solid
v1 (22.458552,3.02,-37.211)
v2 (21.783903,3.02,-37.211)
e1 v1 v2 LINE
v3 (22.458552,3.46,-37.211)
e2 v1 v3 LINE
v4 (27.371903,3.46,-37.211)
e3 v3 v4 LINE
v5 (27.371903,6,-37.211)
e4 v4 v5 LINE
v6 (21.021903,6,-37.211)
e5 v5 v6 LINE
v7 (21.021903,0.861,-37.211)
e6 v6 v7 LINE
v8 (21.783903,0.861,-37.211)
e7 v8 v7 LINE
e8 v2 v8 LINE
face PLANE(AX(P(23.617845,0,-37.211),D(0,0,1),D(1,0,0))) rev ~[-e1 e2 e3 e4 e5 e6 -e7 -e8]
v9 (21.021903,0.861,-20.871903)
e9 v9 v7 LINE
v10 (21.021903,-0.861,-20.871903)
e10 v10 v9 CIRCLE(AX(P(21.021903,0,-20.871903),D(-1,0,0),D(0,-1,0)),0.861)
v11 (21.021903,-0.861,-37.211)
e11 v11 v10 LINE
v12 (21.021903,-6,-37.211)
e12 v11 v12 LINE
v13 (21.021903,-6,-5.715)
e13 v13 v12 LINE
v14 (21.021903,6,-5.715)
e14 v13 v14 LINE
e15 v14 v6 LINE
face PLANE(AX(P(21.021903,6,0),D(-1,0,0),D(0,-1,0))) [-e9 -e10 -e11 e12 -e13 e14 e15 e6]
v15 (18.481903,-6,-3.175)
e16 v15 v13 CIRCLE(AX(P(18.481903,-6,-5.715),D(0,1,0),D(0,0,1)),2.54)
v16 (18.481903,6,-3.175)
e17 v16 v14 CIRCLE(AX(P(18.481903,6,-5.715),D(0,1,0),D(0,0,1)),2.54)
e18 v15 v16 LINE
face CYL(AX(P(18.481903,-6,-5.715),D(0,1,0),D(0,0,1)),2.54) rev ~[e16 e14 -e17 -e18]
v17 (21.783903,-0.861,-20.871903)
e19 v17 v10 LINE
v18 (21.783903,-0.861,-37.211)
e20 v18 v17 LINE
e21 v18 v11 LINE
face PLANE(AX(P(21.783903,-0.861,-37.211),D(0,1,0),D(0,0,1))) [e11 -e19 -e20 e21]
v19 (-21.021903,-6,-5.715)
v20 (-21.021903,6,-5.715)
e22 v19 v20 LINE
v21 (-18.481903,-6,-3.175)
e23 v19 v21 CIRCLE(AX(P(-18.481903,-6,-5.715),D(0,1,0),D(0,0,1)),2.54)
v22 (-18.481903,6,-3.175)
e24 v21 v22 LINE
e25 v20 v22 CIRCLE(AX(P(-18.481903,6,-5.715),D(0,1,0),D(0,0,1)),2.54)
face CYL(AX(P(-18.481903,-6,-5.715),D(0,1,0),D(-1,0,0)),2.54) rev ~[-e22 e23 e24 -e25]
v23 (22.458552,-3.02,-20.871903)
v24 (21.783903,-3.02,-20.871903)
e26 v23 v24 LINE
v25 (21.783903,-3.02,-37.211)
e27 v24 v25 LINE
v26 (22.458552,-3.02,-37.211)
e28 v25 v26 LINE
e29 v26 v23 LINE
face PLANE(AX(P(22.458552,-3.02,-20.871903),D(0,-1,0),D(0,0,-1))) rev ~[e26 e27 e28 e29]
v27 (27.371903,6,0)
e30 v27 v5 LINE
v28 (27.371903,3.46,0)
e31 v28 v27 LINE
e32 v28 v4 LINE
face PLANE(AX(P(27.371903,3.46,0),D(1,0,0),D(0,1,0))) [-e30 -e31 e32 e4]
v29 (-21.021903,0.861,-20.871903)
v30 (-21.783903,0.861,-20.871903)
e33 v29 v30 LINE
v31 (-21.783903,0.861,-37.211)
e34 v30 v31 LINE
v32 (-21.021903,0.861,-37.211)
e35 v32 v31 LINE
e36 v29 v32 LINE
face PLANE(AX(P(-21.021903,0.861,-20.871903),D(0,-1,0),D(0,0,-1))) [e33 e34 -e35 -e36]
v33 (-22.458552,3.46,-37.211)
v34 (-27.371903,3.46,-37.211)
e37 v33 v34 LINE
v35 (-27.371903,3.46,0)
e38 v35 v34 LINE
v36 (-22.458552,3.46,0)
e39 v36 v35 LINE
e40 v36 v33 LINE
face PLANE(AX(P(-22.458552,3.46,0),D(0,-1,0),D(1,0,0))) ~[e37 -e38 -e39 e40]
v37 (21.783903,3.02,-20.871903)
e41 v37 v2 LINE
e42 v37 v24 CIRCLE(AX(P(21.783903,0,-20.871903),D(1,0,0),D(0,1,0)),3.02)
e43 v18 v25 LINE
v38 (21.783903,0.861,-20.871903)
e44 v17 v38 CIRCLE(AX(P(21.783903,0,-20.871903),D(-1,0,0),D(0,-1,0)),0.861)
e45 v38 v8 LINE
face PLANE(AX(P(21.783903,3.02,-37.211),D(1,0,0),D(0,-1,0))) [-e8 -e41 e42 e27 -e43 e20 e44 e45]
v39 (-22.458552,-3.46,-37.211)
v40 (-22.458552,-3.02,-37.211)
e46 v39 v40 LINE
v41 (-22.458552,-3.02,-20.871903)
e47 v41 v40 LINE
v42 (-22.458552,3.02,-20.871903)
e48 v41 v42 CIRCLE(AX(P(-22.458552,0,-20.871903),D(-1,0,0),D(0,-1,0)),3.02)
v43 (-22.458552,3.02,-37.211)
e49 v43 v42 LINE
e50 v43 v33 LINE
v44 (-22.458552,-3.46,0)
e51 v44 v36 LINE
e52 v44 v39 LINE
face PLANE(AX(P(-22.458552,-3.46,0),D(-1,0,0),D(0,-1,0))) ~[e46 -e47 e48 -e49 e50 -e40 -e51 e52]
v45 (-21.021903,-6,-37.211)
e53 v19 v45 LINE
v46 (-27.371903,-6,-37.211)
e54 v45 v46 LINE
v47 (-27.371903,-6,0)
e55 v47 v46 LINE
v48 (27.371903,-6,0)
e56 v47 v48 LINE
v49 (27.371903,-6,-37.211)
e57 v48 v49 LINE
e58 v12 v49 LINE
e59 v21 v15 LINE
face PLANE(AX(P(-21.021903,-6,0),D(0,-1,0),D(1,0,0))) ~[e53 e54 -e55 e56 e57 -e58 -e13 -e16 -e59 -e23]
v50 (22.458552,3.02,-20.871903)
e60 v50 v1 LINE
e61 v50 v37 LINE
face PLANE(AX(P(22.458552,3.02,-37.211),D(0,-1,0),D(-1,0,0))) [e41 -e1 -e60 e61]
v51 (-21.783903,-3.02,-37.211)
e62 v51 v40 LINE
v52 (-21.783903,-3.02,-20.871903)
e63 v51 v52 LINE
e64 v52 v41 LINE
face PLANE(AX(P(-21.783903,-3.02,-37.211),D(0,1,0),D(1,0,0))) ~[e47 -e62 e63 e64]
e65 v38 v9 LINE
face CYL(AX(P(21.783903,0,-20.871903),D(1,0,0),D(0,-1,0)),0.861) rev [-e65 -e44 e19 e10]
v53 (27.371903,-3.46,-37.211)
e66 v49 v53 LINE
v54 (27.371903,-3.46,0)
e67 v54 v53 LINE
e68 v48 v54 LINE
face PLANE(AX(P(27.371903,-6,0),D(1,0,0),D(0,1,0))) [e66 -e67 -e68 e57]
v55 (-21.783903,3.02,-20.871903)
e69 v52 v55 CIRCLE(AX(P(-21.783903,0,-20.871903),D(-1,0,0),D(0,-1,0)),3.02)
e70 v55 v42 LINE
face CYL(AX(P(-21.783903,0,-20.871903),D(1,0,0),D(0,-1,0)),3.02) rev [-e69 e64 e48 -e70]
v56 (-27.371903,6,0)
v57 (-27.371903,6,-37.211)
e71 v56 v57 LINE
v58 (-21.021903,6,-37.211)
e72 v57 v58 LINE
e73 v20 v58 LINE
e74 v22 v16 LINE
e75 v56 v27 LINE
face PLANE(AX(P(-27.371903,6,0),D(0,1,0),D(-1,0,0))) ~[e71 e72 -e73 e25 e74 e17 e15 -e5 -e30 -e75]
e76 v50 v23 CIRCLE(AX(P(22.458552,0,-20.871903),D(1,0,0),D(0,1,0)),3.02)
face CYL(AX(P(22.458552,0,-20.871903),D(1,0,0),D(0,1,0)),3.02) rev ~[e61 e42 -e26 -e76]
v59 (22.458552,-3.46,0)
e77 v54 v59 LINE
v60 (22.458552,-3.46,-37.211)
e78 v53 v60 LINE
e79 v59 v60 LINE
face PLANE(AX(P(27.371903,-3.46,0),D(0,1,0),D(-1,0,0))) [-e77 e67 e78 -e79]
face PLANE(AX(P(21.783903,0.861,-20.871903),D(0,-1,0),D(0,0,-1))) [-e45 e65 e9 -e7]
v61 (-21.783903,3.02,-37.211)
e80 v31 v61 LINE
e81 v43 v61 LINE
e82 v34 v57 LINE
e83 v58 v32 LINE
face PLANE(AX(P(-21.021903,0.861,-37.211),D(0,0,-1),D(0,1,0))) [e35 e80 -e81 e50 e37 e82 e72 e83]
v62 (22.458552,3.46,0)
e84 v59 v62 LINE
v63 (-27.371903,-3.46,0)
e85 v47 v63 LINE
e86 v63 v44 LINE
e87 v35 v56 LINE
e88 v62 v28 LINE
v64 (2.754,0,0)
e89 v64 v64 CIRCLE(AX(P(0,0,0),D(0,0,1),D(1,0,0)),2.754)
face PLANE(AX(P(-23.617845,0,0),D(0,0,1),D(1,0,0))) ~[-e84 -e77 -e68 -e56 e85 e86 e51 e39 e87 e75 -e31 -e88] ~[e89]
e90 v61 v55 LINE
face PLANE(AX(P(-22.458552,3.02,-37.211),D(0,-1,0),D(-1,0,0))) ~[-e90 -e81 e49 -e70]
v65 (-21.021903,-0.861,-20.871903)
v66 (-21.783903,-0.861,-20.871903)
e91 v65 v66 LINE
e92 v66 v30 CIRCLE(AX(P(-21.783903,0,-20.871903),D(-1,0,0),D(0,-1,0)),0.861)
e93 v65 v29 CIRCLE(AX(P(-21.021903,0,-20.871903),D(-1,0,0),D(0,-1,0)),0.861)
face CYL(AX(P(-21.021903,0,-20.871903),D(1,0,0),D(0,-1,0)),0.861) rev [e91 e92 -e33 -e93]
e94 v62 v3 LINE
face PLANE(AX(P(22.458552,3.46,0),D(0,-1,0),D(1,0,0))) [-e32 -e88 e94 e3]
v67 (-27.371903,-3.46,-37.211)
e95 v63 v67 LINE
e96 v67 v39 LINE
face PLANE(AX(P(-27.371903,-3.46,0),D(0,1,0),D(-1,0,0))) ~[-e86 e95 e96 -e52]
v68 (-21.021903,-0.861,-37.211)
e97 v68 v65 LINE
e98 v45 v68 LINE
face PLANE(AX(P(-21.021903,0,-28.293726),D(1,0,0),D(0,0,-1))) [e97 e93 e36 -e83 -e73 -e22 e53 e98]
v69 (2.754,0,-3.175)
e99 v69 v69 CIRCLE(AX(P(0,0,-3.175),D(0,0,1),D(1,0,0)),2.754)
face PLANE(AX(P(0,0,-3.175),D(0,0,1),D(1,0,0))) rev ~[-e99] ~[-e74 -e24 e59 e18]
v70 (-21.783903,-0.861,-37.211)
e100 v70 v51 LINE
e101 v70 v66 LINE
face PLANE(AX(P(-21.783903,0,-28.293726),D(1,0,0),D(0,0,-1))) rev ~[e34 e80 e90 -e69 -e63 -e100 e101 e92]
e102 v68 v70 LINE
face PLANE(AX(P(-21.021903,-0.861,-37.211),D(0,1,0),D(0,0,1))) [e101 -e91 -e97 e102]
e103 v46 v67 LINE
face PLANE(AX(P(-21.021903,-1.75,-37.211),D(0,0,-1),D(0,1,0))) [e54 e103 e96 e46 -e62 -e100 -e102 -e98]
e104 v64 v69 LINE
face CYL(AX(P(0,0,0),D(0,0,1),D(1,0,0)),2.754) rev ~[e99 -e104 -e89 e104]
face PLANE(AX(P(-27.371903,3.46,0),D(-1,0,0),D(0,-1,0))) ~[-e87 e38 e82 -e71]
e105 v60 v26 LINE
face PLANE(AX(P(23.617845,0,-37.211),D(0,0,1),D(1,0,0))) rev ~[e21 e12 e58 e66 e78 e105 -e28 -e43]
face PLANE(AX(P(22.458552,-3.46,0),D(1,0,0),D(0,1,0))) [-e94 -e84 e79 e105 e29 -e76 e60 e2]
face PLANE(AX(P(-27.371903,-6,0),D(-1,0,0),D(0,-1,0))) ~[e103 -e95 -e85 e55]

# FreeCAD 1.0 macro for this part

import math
import FreeCAD as App
import Part
import Sketcher

V = App.Vector
Q = App.Units.Quantity


def edges_at(feature, points):
    """Names of the edges that pass closest to the given points."""
    edges = feature.Shape.Edges
    near = lambda p: min(range(len(edges)), key=lambda i: edges[i].distToShape(Part.Vertex(*p))[0])
    return sorted({f"Edge{near(p) + 1}" for p in points})


def add_polygon(sketch, points):
    """Adds a closed chain of lines whose ends are joined by coincident constraints."""
    first, n = sketch.GeometryCount, len(points)
    for a, b in zip(points, points[1:] + points[:1]):
        sketch.addGeometry(Part.LineSegment(App.Vector(*a, 0), App.Vector(*b, 0)), False)
    for i in range(n):
        sketch.addConstraint(Sketcher.Constraint("Coincident", first + i, 2, first + (i + 1) % n, 1))

doc = App.newDocument("Part")
params = doc.addObject("Spreadsheet::Sheet", "Params")
for row, (alias, value) in enumerate([
    ("pad1_length", "0.125 in"),
    ("sketch2_height", "0.1 in"),
    ("sketch2_width", "0.25 in"),
    ("pad2_length", "1.465 in"),
    ("pocket2_length", "0.674649 mm"),
    ("pocket3_length", "0.674649 mm"),
    ("fillet_radius", "0.1 in"),
    ("sketch6_width", "0.03 in"),
    ("sketch6_height", "0.05 in"),
    ("pocket4_length", "0.39 in"),
    ("sketch7_width", "0.035 in"),
    ("pad3_length", "0.03 in"),
    ("sketch8_width", "0.085 in"),
    ("pad4_length", "0.03 in"),
], start=1):
    params.set(f"A{row}", alias)
    params.set(f"B{row}", "=" + value)
    params.setAlias(f"B{row}", alias)

body = doc.addObject("PartDesign::Body", "Body")

sketch1 = doc.addObject("Sketcher::SketchObject", "Sketch")
body.addObject(sketch1)
sketch1.AttachmentSupport = (doc.XY_Plane, [""])
sketch1.MapMode = "FlatFace"
add_polygon(sketch1, [(-21, 6), (-21, -6), (21, -6), (21, 6)])
sketch1.addGeometry(Part.Circle(V(0, 0, 0), V(0, 0, 1), 2.8), False)
sketch1.addConstraint([
    Sketcher.Constraint("Vertical", 0),
    Sketcher.Constraint("Horizontal", 1),
    Sketcher.Constraint("Vertical", 2),
    Sketcher.Constraint("Horizontal", 3),
    Sketcher.Constraint("Coincident", 4, 3, -1, 1),
    Sketcher.Constraint("Symmetric", 0, 2, 2, 2, -1, 1),
    Sketcher.Constraint("Diameter", 4, Q("5.508 mm")),
    Sketcher.Constraint("DistanceY", 0, 2, 0, 1, Q("12 mm")),
    Sketcher.Constraint("DistanceX", 1, 1, 1, 2, Q("42.043806 mm")),
])
pad1 = doc.addObject("PartDesign::Pad", "Pad")
body.addObject(pad1)
pad1.Profile = sketch1
pad1.setExpression("Length", "Params.pad1_length")
pad1.Reversed = True

sketch2 = doc.addObject("Sketcher::SketchObject", "Sketch001")
body.addObject(sketch2)
sketch2.AttachmentSupport = (doc.XY_Plane, [""])
sketch2.MapMode = "FlatFace"
add_polygon(sketch2, [(27.4, 3.5), (27.4, 6), (21, 6), (21, -6), (27.4, -6), (27.4, -3.5), (22.5, -3.5), (22.5, 3.5)])
sketch2.addConstraint([
    Sketcher.Constraint("Vertical", 0),
    Sketcher.Constraint("Horizontal", 1),
    Sketcher.Constraint("Vertical", 2),
    Sketcher.Constraint("Horizontal", 3),
    Sketcher.Constraint("Vertical", 4),
    Sketcher.Constraint("Horizontal", 5),
    Sketcher.Constraint("Vertical", 6),
    Sketcher.Constraint("Horizontal", 7),
    Sketcher.Constraint("Symmetric", 0, 2, 3, 2, -1),
    Sketcher.Constraint("Equal", 0, 4),
    Sketcher.Constraint("DistanceY", 0, 1, 0, 2, Q("0.1 in")),
    Sketcher.Constraint("DistanceX", 1, 2, 1, 1, Q("0.25 in")),
    Sketcher.Constraint("DistanceY", 2, 2, 2, 1, Q("12 mm")),
    Sketcher.Constraint("DistanceX", 5, 2, 5, 1, Q("4.913351 mm")),
    Sketcher.Constraint("DistanceX", -1, 1, 5, 2, Q("22.458552 mm")),
])
sketch2.setExpression("Constraints[18]", "Params.sketch2_height")
sketch2.setExpression("Constraints[19]", "Params.sketch2_width")
pad2 = doc.addObject("PartDesign::Pad", "Pad001")
body.addObject(pad2)
pad2.Profile = sketch2
pad2.setExpression("Length", "Params.pad2_length")
pad2.Reversed = True
doc.recompute()

mirrored = doc.addObject("PartDesign::Mirrored", "Mirrored")
body.addObject(mirrored)
mirrored.Originals = [pad2]
mirrored.MirrorPlane = (doc.YZ_Plane, [""])
body.Tip = mirrored

sketch3 = doc.addObject("Sketcher::SketchObject", "Sketch002")
body.addObject(sketch3)
sketch3.AttachmentSupport = (doc.YZ_Plane, [""])
sketch3.MapMode = "FlatFace"
sketch3.AttachmentOffset = App.Placement(V(0, 0, 22.458552), App.Rotation())
sketch3.addGeometry([
    Part.LineSegment(V(1.8, -31.8, 0), V(1.8, -20.9, 0)),
    Part.ArcOfCircle(Part.Circle(V(0, -20.9, 0), V(0, 0, 1), 1.8), math.radians(0), math.radians(180)),
    Part.LineSegment(V(-1.8, -20.9, 0), V(-1.8, -31.8, 0)),
    Part.ArcOfCircle(Part.Circle(V(0, -31.8, 0), V(0, 0, 1), 1.8), math.radians(180), math.radians(360)),
], False)
sketch3.addConstraint([
    Sketcher.Constraint("Tangent", 0, 2, 1, 1),
    Sketcher.Constraint("Tangent", 1, 2, 2, 1),
    Sketcher.Constraint("Tangent", 2, 2, 3, 1),
    Sketcher.Constraint("Tangent", 3, 2, 0, 1),
    Sketcher.Constraint("Vertical", 0),
    Sketcher.Constraint("Vertical", 2),
    Sketcher.Constraint("PointOnObject", 1, 3, -2),
    Sketcher.Constraint("Radius", 1, Q("1.75 mm")),
    Sketcher.Constraint("DistanceY", 0, 1, 0, 2, Q("10.9 mm")),
    Sketcher.Constraint("DistanceY", 1, 3, -1, 1, Q("20.871903 mm")),
])
pocket1 = doc.addObject("PartDesign::Pocket", "Pocket")
body.addObject(pocket1)
pocket1.Profile = sketch3
pocket1.Type = "ThroughAll"

sketch4 = doc.addObject("Sketcher::SketchObject", "Sketch003")
body.addObject(sketch4)
sketch4.AttachmentSupport = (doc.YZ_Plane, [""])
sketch4.MapMode = "FlatFace"
sketch4.AttachmentOffset = App.Placement(V(0, 0, 22.458552), App.Rotation())
sketch4.addGeometry([
    Part.LineSegment(V(3, -31.8, 0), V(3, -20.9, 0)),
    Part.ArcOfCircle(Part.Circle(V(0, -20.9, 0), V(0, 0, 1), 3), math.radians(0), math.radians(180)),
    Part.LineSegment(V(-3, -20.9, 0), V(-3, -31.8, 0)),
    Part.ArcOfCircle(Part.Circle(V(0, -31.8, 0), V(0, 0, 1), 3), math.radians(180), math.radians(360)),
], False)
sketch4.addConstraint([
    Sketcher.Constraint("Tangent", 0, 2, 1, 1),
    Sketcher.Constraint("Tangent", 1, 2, 2, 1),
    Sketcher.Constraint("Tangent", 2, 2, 3, 1),
    Sketcher.Constraint("Tangent", 3, 2, 0, 1),
    Sketcher.Constraint("Vertical", 0),
    Sketcher.Constraint("Vertical", 2),
    Sketcher.Constraint("PointOnObject", 1, 3, -2),
    Sketcher.Constraint("Radius", 1, Q("3.02 mm")),
    Sketcher.Constraint("DistanceY", 0, 1, 0, 2, Q("10.9 mm")),
    Sketcher.Constraint("DistanceY", 1, 3, -1, 1, Q("20.871903 mm")),
])
pocket2 = doc.addObject("PartDesign::Pocket", "Pocket001")
body.addObject(pocket2)
pocket2.Profile = sketch4
pocket2.setExpression("Length", "Params.pocket2_length")

sketch5 = doc.addObject("Sketcher::SketchObject", "Sketch004")
body.addObject(sketch5)
sketch5.AttachmentSupport = (doc.YZ_Plane, [""])
sketch5.MapMode = "FlatFace"
sketch5.AttachmentOffset = App.Placement(V(0, 0, -21.783903), App.Rotation())
sketch5.addGeometry([
    Part.LineSegment(V(3, -20.9, 0), V(3, -31.8, 0)),
    Part.ArcOfCircle(Part.Circle(V(0, -31.8, 0), V(0, 0, 1), 3), math.radians(180), math.radians(360)),
    Part.LineSegment(V(-3, -31.8, 0), V(-3, -20.9, 0)),
    Part.ArcOfCircle(Part.Circle(V(0, -20.9, 0), V(0, 0, 1), 3), math.radians(0), math.radians(180)),
], False)
sketch5.addConstraint([
    Sketcher.Constraint("Tangent", 0, 2, 1, 2),
    Sketcher.Constraint("Tangent", 1, 1, 2, 1),
    Sketcher.Constraint("Tangent", 2, 2, 3, 2),
    Sketcher.Constraint("Tangent", 3, 1, 0, 1),
    Sketcher.Constraint("Vertical", 0),
    Sketcher.Constraint("Vertical", 2),
    Sketcher.Constraint("PointOnObject", 1, 3, -2),
    Sketcher.Constraint("Radius", 1, Q("3.02 mm")),
    Sketcher.Constraint("DistanceY", 0, 2, 0, 1, Q("10.9 mm")),
    Sketcher.Constraint("DistanceY", 1, 3, -1, 1, Q("31.771903 mm")),
])
pocket3 = doc.addObject("PartDesign::Pocket", "Pocket002")
body.addObject(pocket3)
pocket3.Profile = sketch5
pocket3.setExpression("Length", "Params.pocket3_length")
doc.recompute()

fillet = doc.addObject("PartDesign::Fillet", "Fillet")
body.addObject(fillet)
fillet.Base = (pocket3, edges_at(pocket3, [(-21.022, 0, -3.175), (21.022, 0, -3.175)]))
fillet.setExpression("Radius", "Params.fillet_radius")

sketch6 = doc.addObject("Sketcher::SketchObject", "Sketch005")
body.addObject(sketch6)
sketch6.AttachmentSupport = (doc.XY_Plane, [""])
sketch6.MapMode = "FlatFace"
sketch6.AttachmentOffset = App.Placement(V(0, 0, -1.465 * 25.4), App.Rotation())
add_polygon(sketch6, [(22.5, -3), (21.8, -3), (21.8, -1.8), (21, -1.8), (21, 1.8), (21.8, 1.8), (21.8, 3), (22.5, 3)])
sketch6.addConstraint([
    Sketcher.Constraint("Horizontal", 0),
    Sketcher.Constraint("Vertical", 1),
    Sketcher.Constraint("Horizontal", 2),
    Sketcher.Constraint("Vertical", 3),
    Sketcher.Constraint("Horizontal", 4),
    Sketcher.Constraint("Vertical", 5),
    Sketcher.Constraint("Horizontal", 6),
    Sketcher.Constraint("Vertical", 7),
    Sketcher.Constraint("Symmetric", 1, 2, 4, 2, -1),
    Sketcher.Constraint("Equal", 1, 5),
    Sketcher.Constraint("DistanceX", 2, 2, 2, 1, Q("0.03 in")),
    Sketcher.Constraint("DistanceY", 1, 1, 1, 2, Q("0.05 in")),
    Sketcher.Constraint("DistanceY", 3, 1, 3, 2, Q("3.5 mm")),
    Sketcher.Constraint("DistanceX", 0, 2, 0, 1, Q("0.674649 mm")),
    Sketcher.Constraint("DistanceX", -1, 1, 6, 2, Q("22.458552 mm")),
])
sketch6.setExpression("Constraints[18]", "Params.sketch6_width")
sketch6.setExpression("Constraints[19]", "Params.sketch6_height")
pocket4 = doc.addObject("PartDesign::Pocket", "Pocket003")
body.addObject(pocket4)
pocket4.Profile = sketch6
pocket4.setExpression("Length", "Params.pocket4_length")
pocket4.Reversed = True
doc.recompute()

mirrored2 = doc.addObject("PartDesign::Mirrored", "Mirrored001")
body.addObject(mirrored2)
mirrored2.Originals = [pocket4]
mirrored2.MirrorPlane = (doc.YZ_Plane, [""])
body.Tip = mirrored2

sketch7 = doc.addObject("Sketcher::SketchObject", "Sketch006")
body.addObject(sketch7)
sketch7.AttachmentSupport = (doc.YZ_Plane, [""])
sketch7.MapMode = "FlatFace"
sketch7.AttachmentOffset = App.Placement(V(0, 0, -21.021903), App.Rotation())
sketch7.addGeometry([
    Part.LineSegment(V(0.9, -20.9, 0), V(0.9, -37.2, 0)),
    Part.LineSegment(V(0.9, -37.2, 0), V(1.8, -37.2, 0)),
    Part.LineSegment(V(1.8, -37.2, 0), V(1.8, -20.9, 0)),
    Part.ArcOfCircle(Part.Circle(V(0, -20.9, 0), V(0, 0, 1), 1.8), math.radians(0), math.radians(180)),
    Part.LineSegment(V(-1.8, -20.9, 0), V(-1.8, -37.2, 0)),
    Part.LineSegment(V(-1.8, -37.2, 0), V(-0.9, -37.2, 0)),
    Part.LineSegment(V(-0.9, -37.2, 0), V(-0.9, -20.9, 0)),
    Part.ArcOfCircle(Part.Circle(V(0, -20.9, 0), V(0, 0, 1), 0.9), math.radians(0), math.radians(180)),
], False)
sketch7.addConstraint([
    Sketcher.Constraint("Coincident", 0, 2, 1, 1),
    Sketcher.Constraint("Coincident", 1, 2, 2, 1),
    Sketcher.Constraint("Tangent", 2, 2, 3, 1),
    Sketcher.Constraint("Tangent", 3, 2, 4, 1),
    Sketcher.Constraint("Coincident", 4, 2, 5, 1),
    Sketcher.Constraint("Coincident", 5, 2, 6, 1),
    Sketcher.Constraint("Tangent", 6, 2, 7, 2),
    Sketcher.Constraint("Tangent", 7, 1, 0, 1),
    Sketcher.Constraint("Vertical", 0),
    Sketcher.Constraint("Horizontal", 1),
    Sketcher.Constraint("Vertical", 2),
    Sketcher.Constraint("Vertical", 4),
    Sketcher.Constraint("Horizontal", 5),
    Sketcher.Constraint("Vertical", 6),
    Sketcher.Constraint("Coincident", 7, 3, 3, 3),
    Sketcher.Constraint("Symmetric", 1, 2, 4, 2, -2),
    Sketcher.Constraint("DistanceX", 1, 1, 1, 2, Q("0.035 in")),
    Sketcher.Constraint("Radius", 3, Q("1.75 mm")),
    Sketcher.Constraint("DistanceY", 0, 2, -1, 1, Q("1.465 in")),
    Sketcher.Constraint("DistanceY", 0, 2, 0, 1, Q("16.339097 mm")),
])
sketch7.setExpression("Constraints[16]", "Params.sketch7_width")
pad3 = doc.addObject("PartDesign::Pad", "Pad002")
body.addObject(pad3)
pad3.Profile = sketch7
pad3.setExpression("Length", "Params.pad3_length")
pad3.Reversed = True

sketch8 = doc.addObject("Sketcher::SketchObject", "Sketch007")
body.addObject(sketch8)
sketch8.AttachmentSupport = (doc.YZ_Plane, [""])
sketch8.MapMode = "FlatFace"
sketch8.AttachmentOffset = App.Placement(V(0, 0, 21.783903), App.Rotation())
sketch8.addGeometry([
    Part.LineSegment(V(-3, -37.2, 0), V(-3, -20.9, 0)),
    Part.ArcOfCircle(Part.Circle(V(0, -20.9, 0), V(0, 0, 1), 3), math.radians(0), math.radians(180)),
    Part.LineSegment(V(3, -20.9, 0), V(3, -37.2, 0)),
    Part.LineSegment(V(3, -37.2, 0), V(0.9, -37.2, 0)),
    Part.LineSegment(V(0.9, -37.2, 0), V(0.9, -20.9, 0)),
    Part.ArcOfCircle(Part.Circle(V(0, -20.9, 0), V(0, 0, 1), 0.9), math.radians(0), math.radians(180)),
    Part.LineSegment(V(-0.9, -20.9, 0), V(-0.9, -37.2, 0)),
    Part.LineSegment(V(-0.9, -37.2, 0), V(-3, -37.2, 0)),
], False)
sketch8.addConstraint([
    Sketcher.Constraint("Tangent", 0, 2, 1, 2),
    Sketcher.Constraint("Tangent", 1, 1, 2, 1),
    Sketcher.Constraint("Coincident", 2, 2, 3, 1),
    Sketcher.Constraint("Coincident", 3, 2, 4, 1),
    Sketcher.Constraint("Tangent", 4, 2, 5, 1),
    Sketcher.Constraint("Tangent", 5, 2, 6, 1),
    Sketcher.Constraint("Coincident", 6, 2, 7, 1),
    Sketcher.Constraint("Coincident", 7, 2, 0, 1),
    Sketcher.Constraint("Vertical", 0),
    Sketcher.Constraint("Vertical", 2),
    Sketcher.Constraint("Horizontal", 3),
    Sketcher.Constraint("Vertical", 4),
    Sketcher.Constraint("Vertical", 6),
    Sketcher.Constraint("Horizontal", 7),
    Sketcher.Constraint("Coincident", 5, 3, 1, 3),
    Sketcher.Constraint("Symmetric", 3, 2, 6, 2, -2),
    Sketcher.Constraint("DistanceX", 3, 2, 3, 1, Q("0.085 in")),
    Sketcher.Constraint("Radius", 1, Q("3.02 mm")),
    Sketcher.Constraint("DistanceY", 2, 2, -1, 1, Q("1.465 in")),
    Sketcher.Constraint("DistanceY", 0, 1, 0, 2, Q("16.339097 mm")),
])
sketch8.setExpression("Constraints[16]", "Params.sketch8_width")
pad4 = doc.addObject("PartDesign::Pad", "Pad003")
body.addObject(pad4)
pad4.Profile = sketch8
pad4.setExpression("Length", "Params.pad4_length")
pad4.Reversed = True

doc.recompute()
